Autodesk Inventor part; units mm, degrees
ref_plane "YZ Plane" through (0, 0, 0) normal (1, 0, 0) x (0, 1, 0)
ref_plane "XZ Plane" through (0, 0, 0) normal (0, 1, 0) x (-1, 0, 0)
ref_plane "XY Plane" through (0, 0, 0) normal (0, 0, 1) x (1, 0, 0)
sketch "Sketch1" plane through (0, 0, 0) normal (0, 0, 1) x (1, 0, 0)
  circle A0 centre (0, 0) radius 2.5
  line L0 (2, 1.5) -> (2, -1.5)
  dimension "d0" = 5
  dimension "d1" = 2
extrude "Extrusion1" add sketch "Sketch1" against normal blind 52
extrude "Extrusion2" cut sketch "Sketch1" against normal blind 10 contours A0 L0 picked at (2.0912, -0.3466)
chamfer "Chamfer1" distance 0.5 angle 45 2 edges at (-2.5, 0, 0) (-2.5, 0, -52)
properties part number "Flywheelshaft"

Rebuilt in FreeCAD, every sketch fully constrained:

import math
import FreeCAD as App
import Part
import Sketcher


def edges_at(feature, points):
    """Names of the edges that pass closest to the given points."""
    edges = feature.Shape.Edges
    near = lambda p: min(range(len(edges)), key=lambda i: edges[i].distToShape(Part.Vertex(*p))[0])
    return sorted({f"Edge{near(p) + 1}" for p in points})

doc = App.newDocument("Part")
body = doc.addObject("PartDesign::Body", "Body")

sketch1 = body.newObject("Sketcher::SketchObject", "Sketch")
sketch1.AttachmentSupport = (doc.getObject("XY_Plane"), [""])
sketch1.MapMode = "FlatFace"
sketch1.addGeometry(Part.Circle(App.Vector(0, 0, 0), App.Vector(0, 0, 1), 2.5), False)
sketch1.addConstraint([
    Sketcher.Constraint("Coincident", 0, 3, -1, 1),
    Sketcher.Constraint("Diameter", 0, 5.0),
])
pad1 = body.newObject("PartDesign::Pad", "Pad")
pad1.Profile = sketch1
pad1.Length = 52
pad1.Reversed = True

sketch2 = body.newObject("Sketcher::SketchObject", "Sketch001")
sketch2.AttachmentSupport = (doc.getObject("XY_Plane"), [""])
sketch2.MapMode = "FlatFace"
sketch2.addGeometry([
    Part.ArcOfCircle(Part.Circle(App.Vector(0, 0, 0), App.Vector(0, 0, 1), 2.5), math.radians(-37), math.radians(37)),
    Part.LineSegment(App.Vector(2, 1.5, 0), App.Vector(2, -1.5, 0)),
], False)
sketch2.addConstraint([
    Sketcher.Constraint("Coincident", 0, 1, 1, 2),
    Sketcher.Constraint("Coincident", 1, 1, 0, 2),
    Sketcher.Constraint("Vertical", 1),
    Sketcher.Constraint("Coincident", 0, 3, -1, 1),
    Sketcher.Constraint("Radius", 0, 2.5),
    Sketcher.Constraint("DistanceX", -1, 1, 0, 1, 2.0),
])
pocket1 = body.newObject("PartDesign::Pocket", "Pocket")
pocket1.Profile = sketch2
pocket1.Length = 10
doc.recompute()

chamfer = body.newObject("PartDesign::Chamfer", "Chamfer")
chamfer.Base = (pocket1, edges_at(pocket1, [(-2.5, 0, 0), (-2.5, 0, -52)]))
chamfer.Size = 0.5

doc.recompute()
